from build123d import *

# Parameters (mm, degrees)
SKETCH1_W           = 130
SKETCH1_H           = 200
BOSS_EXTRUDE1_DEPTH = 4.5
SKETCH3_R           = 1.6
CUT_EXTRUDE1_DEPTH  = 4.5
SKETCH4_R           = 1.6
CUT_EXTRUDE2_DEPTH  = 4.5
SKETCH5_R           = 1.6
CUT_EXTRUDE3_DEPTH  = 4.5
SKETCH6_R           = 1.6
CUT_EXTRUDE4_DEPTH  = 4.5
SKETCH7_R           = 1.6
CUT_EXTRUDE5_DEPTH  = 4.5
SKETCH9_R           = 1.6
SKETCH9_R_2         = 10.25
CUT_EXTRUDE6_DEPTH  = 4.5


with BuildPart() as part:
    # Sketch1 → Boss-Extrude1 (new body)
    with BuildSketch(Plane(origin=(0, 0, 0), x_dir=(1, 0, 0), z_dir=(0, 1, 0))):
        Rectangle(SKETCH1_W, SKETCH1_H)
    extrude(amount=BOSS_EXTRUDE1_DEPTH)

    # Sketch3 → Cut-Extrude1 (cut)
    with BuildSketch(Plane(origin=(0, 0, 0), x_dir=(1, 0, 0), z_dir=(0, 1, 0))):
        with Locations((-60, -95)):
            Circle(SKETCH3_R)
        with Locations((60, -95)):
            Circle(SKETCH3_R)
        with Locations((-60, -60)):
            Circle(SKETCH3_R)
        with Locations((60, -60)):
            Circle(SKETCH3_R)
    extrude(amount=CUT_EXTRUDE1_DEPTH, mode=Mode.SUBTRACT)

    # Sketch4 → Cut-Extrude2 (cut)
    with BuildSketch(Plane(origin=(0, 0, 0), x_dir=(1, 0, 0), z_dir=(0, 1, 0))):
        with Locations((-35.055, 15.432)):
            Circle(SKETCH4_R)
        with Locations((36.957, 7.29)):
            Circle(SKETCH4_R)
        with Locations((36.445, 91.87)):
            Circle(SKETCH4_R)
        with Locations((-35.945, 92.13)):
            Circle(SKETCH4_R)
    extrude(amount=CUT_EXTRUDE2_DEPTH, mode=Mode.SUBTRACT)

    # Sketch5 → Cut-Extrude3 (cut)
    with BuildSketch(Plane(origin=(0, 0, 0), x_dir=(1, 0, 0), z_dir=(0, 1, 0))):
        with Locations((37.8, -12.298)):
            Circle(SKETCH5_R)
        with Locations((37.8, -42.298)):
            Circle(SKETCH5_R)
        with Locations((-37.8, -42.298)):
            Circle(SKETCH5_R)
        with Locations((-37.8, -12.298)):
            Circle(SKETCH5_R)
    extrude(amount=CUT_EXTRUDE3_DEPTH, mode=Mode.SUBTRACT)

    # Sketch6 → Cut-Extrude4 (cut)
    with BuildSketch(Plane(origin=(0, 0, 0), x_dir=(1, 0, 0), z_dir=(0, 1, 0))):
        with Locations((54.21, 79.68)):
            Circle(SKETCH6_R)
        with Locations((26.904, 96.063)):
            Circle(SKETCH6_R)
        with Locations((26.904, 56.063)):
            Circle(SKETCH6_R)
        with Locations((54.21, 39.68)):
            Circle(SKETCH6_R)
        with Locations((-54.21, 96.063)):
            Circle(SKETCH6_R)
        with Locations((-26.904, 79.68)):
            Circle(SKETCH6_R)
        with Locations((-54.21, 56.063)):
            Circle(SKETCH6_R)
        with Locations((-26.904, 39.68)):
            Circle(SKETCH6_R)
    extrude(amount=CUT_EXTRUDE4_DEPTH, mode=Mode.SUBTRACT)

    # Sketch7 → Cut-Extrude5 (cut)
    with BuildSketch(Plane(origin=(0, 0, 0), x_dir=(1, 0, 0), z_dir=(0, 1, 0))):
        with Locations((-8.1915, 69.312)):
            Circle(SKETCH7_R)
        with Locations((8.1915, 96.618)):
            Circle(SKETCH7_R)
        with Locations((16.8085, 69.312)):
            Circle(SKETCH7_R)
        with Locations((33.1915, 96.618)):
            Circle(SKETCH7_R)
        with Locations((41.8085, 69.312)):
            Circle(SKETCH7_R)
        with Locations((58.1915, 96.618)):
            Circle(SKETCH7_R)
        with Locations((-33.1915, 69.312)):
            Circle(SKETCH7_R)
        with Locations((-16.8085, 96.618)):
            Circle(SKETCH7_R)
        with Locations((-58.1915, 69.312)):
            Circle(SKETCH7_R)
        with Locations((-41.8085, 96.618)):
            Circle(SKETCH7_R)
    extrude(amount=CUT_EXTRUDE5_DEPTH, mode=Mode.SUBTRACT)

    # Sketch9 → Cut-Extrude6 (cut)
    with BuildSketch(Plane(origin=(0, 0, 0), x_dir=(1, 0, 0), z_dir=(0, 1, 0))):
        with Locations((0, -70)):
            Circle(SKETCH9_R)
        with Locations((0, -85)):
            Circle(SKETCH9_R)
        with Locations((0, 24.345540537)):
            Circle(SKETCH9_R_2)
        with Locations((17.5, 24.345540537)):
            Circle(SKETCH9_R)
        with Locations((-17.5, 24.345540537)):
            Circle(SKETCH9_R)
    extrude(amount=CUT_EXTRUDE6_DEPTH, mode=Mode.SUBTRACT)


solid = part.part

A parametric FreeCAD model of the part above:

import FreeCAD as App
import Part
import Sketcher

V = App.Vector

doc = App.newDocument("Part")
params = doc.addObject("Spreadsheet::Sheet", "Params")
for row, (alias, value) in enumerate([
    ("sketch1_width", "130 mm"),
    ("sketch1_height", "200 mm"),
    ("pad1_length", "4.5 mm"),
    ("sketch2_diameter", "3.2 mm"),
    ("pocket1_length", "4.5 mm"),
    ("sketch3_diameter", "3.2 mm"),
    ("pocket2_length", "4.5 mm"),
    ("sketch4_diameter", "3.2 mm"),
    ("pocket3_length", "4.5 mm"),
    ("sketch5_diameter", "3.2 mm"),
    ("pocket4_length", "4.5 mm"),
    ("sketch6_diameter", "3.2 mm"),
    ("pocket5_length", "4.5 mm"),
    ("sketch7_diameter", "3.2 mm"),
    ("sketch7_diameter2", "20.5 mm"),
    ("pocket6_length", "4.5 mm"),
], start=1):
    params.set(f"A{row}", alias)
    params.set(f"B{row}", "=" + value)
    params.setAlias(f"B{row}", alias)

body = doc.addObject("PartDesign::Body", "Body")

# Sketch on XZ plane
sketch1 = body.newObject("Sketcher::SketchObject", "Sketch")
sketch1.AttachmentSupport = (doc.getObject("XZ_Plane"), [""])
sketch1.MapMode = "FlatFace"
sketch1.addGeometry([
    Part.LineSegment(V(-65, -100, 0), V(-65, 100, 0)),
    Part.LineSegment(V(-65, 100, 0), V(65, 100, 0)),
    Part.LineSegment(V(65, 100, 0), V(65, -100, 0)),
    Part.LineSegment(V(65, -100, 0), V(-65, -100, 0)),
], False)
sketch1.addConstraint([
    Sketcher.Constraint("Coincident", 0, 2, 1, 1),
    Sketcher.Constraint("Coincident", 1, 2, 2, 1),
    Sketcher.Constraint("Coincident", 2, 2, 3, 1),
    Sketcher.Constraint("Coincident", 3, 2, 0, 1),
    Sketcher.Constraint("Vertical", 0),
    Sketcher.Constraint("Horizontal", 1),
    Sketcher.Constraint("Vertical", 2),
    Sketcher.Constraint("Horizontal", 3),
    Sketcher.Constraint("Symmetric", 0, 2, 2, 2, -1, 1),
    Sketcher.Constraint("DistanceX", 1, 1, 1, 2, 130.0),
    Sketcher.Constraint("DistanceY", 0, 1, 0, 2, 200.0),
])
sketch1.setExpression("Constraints[9]", "Params.sketch1_width")
sketch1.setExpression("Constraints[10]", "Params.sketch1_height")
pad1 = body.newObject("PartDesign::Pad", "Pad")
pad1.Profile = sketch1
pad1.setExpression("Length", "Params.pad1_length")
pad1.Reversed = True

# Sketch on XZ plane
sketch2 = body.newObject("Sketcher::SketchObject", "Sketch001")
sketch2.AttachmentSupport = (doc.getObject("XZ_Plane"), [""])
sketch2.MapMode = "FlatFace"
sketch2.addGeometry([
    Part.Circle(V(-60, 95, 0), V(0, 0, 1), 1.6),
    Part.Circle(V(60, 95, 0), V(0, 0, 1), 1.6),
    Part.Circle(V(-60, 60, 0), V(0, 0, 1), 1.6),
    Part.Circle(V(60, 60, 0), V(0, 0, 1), 1.6),
], False)
sketch2.addConstraint([
    Sketcher.Constraint("Equal", 0, 1),
    Sketcher.Constraint("Equal", 1, 2),
    Sketcher.Constraint("Equal", 2, 3),
    Sketcher.Constraint("Symmetric", 0, 3, 1, 3, -2),
    Sketcher.Constraint("Symmetric", 2, 3, 3, 3, -2),
    Sketcher.Constraint("Vertical", 0, 3, 2, 3),
    Sketcher.Constraint("Diameter", 0, 3.2),
    Sketcher.Constraint("DistanceX", 0, 3, -1, 1, 60.0),
    Sketcher.Constraint("DistanceY", -1, 1, 0, 3, 95.0),
    Sketcher.Constraint("DistanceY", -1, 1, 2, 3, 60.0),
])
sketch2.setExpression("Constraints[6]", "Params.sketch2_diameter")
pocket1 = body.newObject("PartDesign::Pocket", "Pocket")
pocket1.Profile = sketch2
pocket1.setExpression("Length", "Params.pocket1_length")

# Sketch on XZ plane
sketch3 = body.newObject("Sketcher::SketchObject", "Sketch002")
sketch3.AttachmentSupport = (doc.getObject("XZ_Plane"), [""])
sketch3.MapMode = "FlatFace"
sketch3.addGeometry([
    Part.Circle(V(-35.1, -15.4, 0), V(0, 0, 1), 1.6),
    Part.Circle(V(37, -7.3, 0), V(0, 0, 1), 1.6),
    Part.Circle(V(36.4, -91.9, 0), V(0, 0, 1), 1.6),
    Part.Circle(V(-35.9, -92.1, 0), V(0, 0, 1), 1.6),
], False)
sketch3.addConstraint([
    Sketcher.Constraint("Equal", 0, 1),
    Sketcher.Constraint("Equal", 1, 2),
    Sketcher.Constraint("Equal", 2, 3),
    Sketcher.Constraint("Diameter", 0, 3.2),
    Sketcher.Constraint("DistanceX", 0, 3, 2, 3, 71.5),
    Sketcher.Constraint("DistanceY", 1, 3, -1, 1, 7.29),
    Sketcher.Constraint("DistanceY", 2, 3, -1, 1, 91.87),
    Sketcher.Constraint("DistanceY", 3, 3, -1, 1, 92.13),
    Sketcher.Constraint("DistanceX", 3, 3, 2, 3, 72.39),
    Sketcher.Constraint("DistanceX", 0, 3, -1, 1, 35.055),
    Sketcher.Constraint("DistanceY", 0, 3, -1, 1, 15.432),
    Sketcher.Constraint("DistanceX", -1, 1, 1, 3, 36.957),
])
sketch3.setExpression("Constraints[3]", "Params.sketch3_diameter")
pocket2 = body.newObject("PartDesign::Pocket", "Pocket001")
pocket2.Profile = sketch3
pocket2.setExpression("Length", "Params.pocket2_length")

# Sketch on XZ plane
sketch4 = body.newObject("Sketcher::SketchObject", "Sketch003")
sketch4.AttachmentSupport = (doc.getObject("XZ_Plane"), [""])
sketch4.MapMode = "FlatFace"
sketch4.addGeometry([
    Part.Circle(V(37.8, 12.3, 0), V(0, 0, 1), 1.6),
    Part.Circle(V(37.8, 42.3, 0), V(0, 0, 1), 1.6),
    Part.Circle(V(-37.8, 42.3, 0), V(0, 0, 1), 1.6),
    Part.Circle(V(-37.8, 12.3, 0), V(0, 0, 1), 1.6),
], False)
sketch4.addConstraint([
    Sketcher.Constraint("Equal", 0, 1),
    Sketcher.Constraint("Equal", 1, 2),
    Sketcher.Constraint("Equal", 2, 3),
    Sketcher.Constraint("Symmetric", 1, 3, 2, 3, -2),
    Sketcher.Constraint("Symmetric", 0, 3, 3, 3, -2),
    Sketcher.Constraint("Vertical", 0, 3, 1, 3),
    Sketcher.Constraint("Diameter", 0, 3.2),
    Sketcher.Constraint("DistanceY", 0, 3, 1, 3, 30.0),
    Sketcher.Constraint("DistanceX", -1, 1, 0, 3, 37.8),
    Sketcher.Constraint("DistanceY", -1, 1, 0, 3, 12.298),
])
sketch4.setExpression("Constraints[6]", "Params.sketch4_diameter")
pocket3 = body.newObject("PartDesign::Pocket", "Pocket002")
pocket3.Profile = sketch4
pocket3.setExpression("Length", "Params.pocket3_length")

# Sketch on XZ plane
sketch5 = body.newObject("Sketcher::SketchObject", "Sketch004")
sketch5.AttachmentSupport = (doc.getObject("XZ_Plane"), [""])
sketch5.MapMode = "FlatFace"
sketch5.addGeometry([
    Part.Circle(V(54.2, -79.7, 0), V(0, 0, 1), 1.6),  # 0
    Part.Circle(V(26.9, -96.1, 0), V(0, 0, 1), 1.6),  # 1
    Part.Circle(V(26.9, -56.1, 0), V(0, 0, 1), 1.6),  # 2
    Part.Circle(V(54.2, -39.7, 0), V(0, 0, 1), 1.6),  # 3
    Part.Circle(V(-54.2, -96.1, 0), V(0, 0, 1), 1.6),  # 4
    Part.Circle(V(-26.9, -79.7, 0), V(0, 0, 1), 1.6),  # 5
    Part.Circle(V(-54.2, -56.1, 0), V(0, 0, 1), 1.6),  # 6
    Part.Circle(V(-26.9, -39.7, 0), V(0, 0, 1), 1.6),  # 7
], False)
sketch5.addConstraint([
    Sketcher.Constraint("Equal", 0, 1),
    Sketcher.Constraint("Equal", 1, 2),
    Sketcher.Constraint("Equal", 2, 3),
    Sketcher.Constraint("Equal", 3, 4),
    Sketcher.Constraint("Equal", 4, 5),
    Sketcher.Constraint("Equal", 5, 6),
    Sketcher.Constraint("Equal", 6, 7),
    Sketcher.Constraint("Horizontal", 1, 3, 4, 3),
    Sketcher.Constraint("Horizontal", 0, 3, 5, 3),
    Sketcher.Constraint("Horizontal", 2, 3, 6, 3),
    Sketcher.Constraint("Horizontal", 3, 3, 7, 3),
    Sketcher.Constraint("Vertical", 1, 3, 2, 3),
    Sketcher.Constraint("Vertical", 0, 3, 3, 3),
    Sketcher.Constraint("Vertical", 4, 3, 6, 3),
    Sketcher.Constraint("Vertical", 5, 3, 7, 3),
    Sketcher.Constraint("Diameter", 0, 3.2),
    Sketcher.Constraint("DistanceY", 1, 3, 2, 3, 40.0),
    Sketcher.Constraint("DistanceY", 0, 3, 3, 3, 40.0),
    Sketcher.Constraint("DistanceX", -1, 1, 0, 3, 54.21),
    Sketcher.Constraint("DistanceY", 0, 3, -1, 1, 79.68),
    Sketcher.Constraint("DistanceX", 4, 3, -1, 1, 54.21),
    Sketcher.Constraint("DistanceX", -1, 1, 1, 3, 26.904),
    Sketcher.Constraint("DistanceY", 1, 3, -1, 1, 96.063),
    Sketcher.Constraint("DistanceX", 5, 3, -1, 1, 26.904),
])
sketch5.setExpression("Constraints[15]", "Params.sketch5_diameter")
pocket4 = body.newObject("PartDesign::Pocket", "Pocket003")
pocket4.Profile = sketch5
pocket4.setExpression("Length", "Params.pocket4_length")

# Sketch on XZ plane
sketch6 = body.newObject("Sketcher::SketchObject", "Sketch005")
sketch6.AttachmentSupport = (doc.getObject("XZ_Plane"), [""])
sketch6.MapMode = "FlatFace"
sketch6.addGeometry([
    Part.Circle(V(-8.2, -69.3, 0), V(0, 0, 1), 1.6),  # 0
    Part.Circle(V(8.2, -96.6, 0), V(0, 0, 1), 1.6),  # 1
    Part.Circle(V(16.8, -69.3, 0), V(0, 0, 1), 1.6),  # 2
    Part.Circle(V(33.2, -96.6, 0), V(0, 0, 1), 1.6),  # 3
    Part.Circle(V(41.8, -69.3, 0), V(0, 0, 1), 1.6),  # 4
    Part.Circle(V(58.2, -96.6, 0), V(0, 0, 1), 1.6),  # 5
    Part.Circle(V(-33.2, -69.3, 0), V(0, 0, 1), 1.6),  # 6
    Part.Circle(V(-16.8, -96.6, 0), V(0, 0, 1), 1.6),  # 7
    Part.Circle(V(-58.2, -69.3, 0), V(0, 0, 1), 1.6),  # 8
    Part.Circle(V(-41.8, -96.6, 0), V(0, 0, 1), 1.6),  # 9
], False)
sketch6.addConstraint([
    Sketcher.Constraint("Equal", 0, 1),
    Sketcher.Constraint("Equal", 1, 2),
    Sketcher.Constraint("Equal", 2, 3),
    Sketcher.Constraint("Equal", 3, 4),
    Sketcher.Constraint("Equal", 4, 5),
    Sketcher.Constraint("Equal", 5, 6),
    Sketcher.Constraint("Equal", 6, 7),
    Sketcher.Constraint("Equal", 7, 8),
    Sketcher.Constraint("Equal", 8, 9),
    Sketcher.Constraint("Horizontal", 0, 3, 2, 3),
    Sketcher.Constraint("Horizontal", 1, 3, 3, 3),
    Sketcher.Constraint("Horizontal", 2, 3, 4, 3),
    Sketcher.Constraint("Horizontal", 3, 3, 5, 3),
    Sketcher.Constraint("Horizontal", 4, 3, 6, 3),
    Sketcher.Constraint("Horizontal", 5, 3, 7, 3),
    Sketcher.Constraint("Horizontal", 6, 3, 8, 3),
    Sketcher.Constraint("Horizontal", 7, 3, 9, 3),
    Sketcher.Constraint("Diameter", 0, 3.2),
    Sketcher.Constraint("DistanceX", 0, 3, 2, 3, 25.0),
    Sketcher.Constraint("DistanceX", 1, 3, 3, 3, 25.0),
    Sketcher.Constraint("DistanceX", 2, 3, 4, 3, 25.0),
    Sketcher.Constraint("DistanceX", 3, 3, 5, 3, 25.0),
    Sketcher.Constraint("DistanceX", 6, 3, 0, 3, 25.0),
    Sketcher.Constraint("DistanceX", 7, 3, 1, 3, 25.0),
    Sketcher.Constraint("DistanceX", 8, 3, 6, 3, 25.0),
    Sketcher.Constraint("DistanceX", 9, 3, 7, 3, 25.0),
    Sketcher.Constraint("DistanceY", 0, 3, -1, 1, 69.312),
    Sketcher.Constraint("DistanceY", 1, 3, -1, 1, 96.618),
    Sketcher.Constraint("DistanceX", 0, 3, 1, 3, 16.383),
    Sketcher.Constraint("DistanceX", 0, 3, -1, 1, 8.1915),
])
sketch6.setExpression("Constraints[17]", "Params.sketch6_diameter")
pocket5 = body.newObject("PartDesign::Pocket", "Pocket004")
pocket5.Profile = sketch6
pocket5.setExpression("Length", "Params.pocket5_length")

# Sketch on XZ plane
sketch7 = body.newObject("Sketcher::SketchObject", "Sketch006")
sketch7.AttachmentSupport = (doc.getObject("XZ_Plane"), [""])
sketch7.MapMode = "FlatFace"
sketch7.addGeometry([
    Part.Circle(V(0, 70, 0), V(0, 0, 1), 1.6),  # 0
    Part.Circle(V(0, 85, 0), V(0, 0, 1), 1.6),  # 1
    Part.Circle(V(0, -24.3, 0), V(0, 0, 1), 10.2),  # 2
    Part.Circle(V(17.5, -24.3, 0), V(0, 0, 1), 1.6),  # 3
    Part.Circle(V(-17.5, -24.3, 0), V(0, 0, 1), 1.6),  # 4
], False)
sketch7.addConstraint([
    Sketcher.Constraint("Equal", 0, 1),
    Sketcher.Constraint("Equal", 1, 3),
    Sketcher.Constraint("Equal", 3, 4),
    Sketcher.Constraint("Symmetric", 3, 3, 4, 3, -2),
    Sketcher.Constraint("PointOnObject", 0, 3, -2),
    Sketcher.Constraint("PointOnObject", 1, 3, -2),
    Sketcher.Constraint("PointOnObject", 2, 3, -2),
    Sketcher.Constraint("Horizontal", 2, 3, 3, 3),
    Sketcher.Constraint("Diameter", 0, 3.2),
    Sketcher.Constraint("Diameter", 2, 20.5),
    Sketcher.Constraint("DistanceY", -1, 1, 0, 3, 70.0),
    Sketcher.Constraint("DistanceY", -1, 1, 1, 3, 85.0),
    Sketcher.Constraint("DistanceX", 4, 3, 3, 3, 35.0),
    Sketcher.Constraint("DistanceY", 2, 3, -1, 1, 24.345541),
])
sketch7.setExpression("Constraints[8]", "Params.sketch7_diameter")
sketch7.setExpression("Constraints[9]", "Params.sketch7_diameter2")
pocket6 = body.newObject("PartDesign::Pocket", "Pocket005")
pocket6.Profile = sketch7
pocket6.setExpression("Length", "Params.pocket6_length")

doc.recompute()
